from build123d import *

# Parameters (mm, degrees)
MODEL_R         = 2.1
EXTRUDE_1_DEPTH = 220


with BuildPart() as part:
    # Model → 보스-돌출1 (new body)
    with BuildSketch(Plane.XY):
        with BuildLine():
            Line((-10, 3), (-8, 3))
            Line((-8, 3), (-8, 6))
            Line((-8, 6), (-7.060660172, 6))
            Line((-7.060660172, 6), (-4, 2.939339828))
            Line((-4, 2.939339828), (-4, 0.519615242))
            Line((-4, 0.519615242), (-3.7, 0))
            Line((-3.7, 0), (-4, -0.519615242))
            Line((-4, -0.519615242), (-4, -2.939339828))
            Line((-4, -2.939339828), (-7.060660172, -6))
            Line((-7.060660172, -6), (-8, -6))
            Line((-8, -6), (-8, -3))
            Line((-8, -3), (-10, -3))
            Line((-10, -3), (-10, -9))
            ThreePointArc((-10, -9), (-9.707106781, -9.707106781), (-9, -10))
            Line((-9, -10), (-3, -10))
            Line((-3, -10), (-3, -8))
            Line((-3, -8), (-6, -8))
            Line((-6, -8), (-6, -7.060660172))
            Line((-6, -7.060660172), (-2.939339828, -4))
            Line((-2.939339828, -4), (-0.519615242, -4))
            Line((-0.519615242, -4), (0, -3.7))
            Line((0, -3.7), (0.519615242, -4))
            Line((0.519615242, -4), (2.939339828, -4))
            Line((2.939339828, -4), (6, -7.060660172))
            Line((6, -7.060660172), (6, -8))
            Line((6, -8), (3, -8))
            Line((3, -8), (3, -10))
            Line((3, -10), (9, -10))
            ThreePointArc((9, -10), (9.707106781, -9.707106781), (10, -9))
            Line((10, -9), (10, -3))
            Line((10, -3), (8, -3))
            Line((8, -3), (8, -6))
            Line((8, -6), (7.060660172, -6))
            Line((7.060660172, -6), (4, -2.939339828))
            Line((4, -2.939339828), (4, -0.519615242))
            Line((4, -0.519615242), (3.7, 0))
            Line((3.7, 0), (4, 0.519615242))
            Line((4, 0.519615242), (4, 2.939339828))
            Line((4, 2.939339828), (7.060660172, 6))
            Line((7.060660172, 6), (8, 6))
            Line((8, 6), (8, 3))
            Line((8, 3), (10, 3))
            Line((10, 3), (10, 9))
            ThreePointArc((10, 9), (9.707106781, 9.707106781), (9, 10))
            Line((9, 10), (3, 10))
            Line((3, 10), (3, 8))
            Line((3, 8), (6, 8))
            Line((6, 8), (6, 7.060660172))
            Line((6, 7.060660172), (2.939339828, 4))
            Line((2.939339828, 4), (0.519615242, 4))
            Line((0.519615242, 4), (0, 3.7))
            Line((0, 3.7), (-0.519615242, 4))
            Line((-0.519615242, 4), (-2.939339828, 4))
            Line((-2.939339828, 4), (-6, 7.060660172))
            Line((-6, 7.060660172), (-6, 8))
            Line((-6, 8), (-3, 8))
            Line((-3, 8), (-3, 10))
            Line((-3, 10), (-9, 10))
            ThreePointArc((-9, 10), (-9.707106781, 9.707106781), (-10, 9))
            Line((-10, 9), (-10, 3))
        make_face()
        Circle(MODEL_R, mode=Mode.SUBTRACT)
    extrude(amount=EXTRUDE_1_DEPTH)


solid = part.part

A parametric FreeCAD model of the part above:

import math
import FreeCAD as App
import Part
import Sketcher
from FreeCAD import Vector
Q = App.Units.Quantity

doc = App.newDocument("Part")
body = doc.addObject("PartDesign::Body", "Body")

# Sketch on XY plane
sketch1 = body.newObject("Sketcher::SketchObject", "Sketch")
sketch1.AttachmentSupport = (doc.getObject("XY_Plane"), [""])
sketch1.MapMode = "FlatFace"
sketch1.addGeometry([
    Part.LineSegment(Vector(-10, 3, 0), Vector(-8, 3, 0)),  # 0
    Part.LineSegment(Vector(-8, 3, 0), Vector(-8, 6, 0)),  # 1
    Part.LineSegment(Vector(-8, 6, 0), Vector(-7.1, 6, 0)),  # 2
    Part.LineSegment(Vector(-7.1, 6, 0), Vector(-4, 2.9, 0)),  # 3
    Part.LineSegment(Vector(-4, 2.9, 0), Vector(-4, 0.5, 0)),  # 4
    Part.LineSegment(Vector(-4, 0.5, 0), Vector(-3.7, 0, 0)),  # 5
    Part.LineSegment(Vector(-3.7, 0, 0), Vector(-4, -0.5, 0)),  # 6
    Part.LineSegment(Vector(-4, -0.5, 0), Vector(-4, -2.9, 0)),  # 7
    Part.LineSegment(Vector(-4, -2.9, 0), Vector(-7.1, -6, 0)),  # 8
    Part.LineSegment(Vector(-7.1, -6, 0), Vector(-8, -6, 0)),  # 9
    Part.LineSegment(Vector(-8, -6, 0), Vector(-8, -3, 0)),  # 10
    Part.LineSegment(Vector(-8, -3, 0), Vector(-10, -3, 0)),  # 11
    Part.LineSegment(Vector(-10, -3, 0), Vector(-10, -9, 0)),  # 12
    Part.ArcOfCircle(Part.Circle(Vector(-9, -9, 0), Vector(0, 0, 1), 1), math.radians(-180), math.radians(-90)),  # 13
    Part.LineSegment(Vector(-9, -10, 0), Vector(-3, -10, 0)),  # 14
    Part.LineSegment(Vector(-3, -10, 0), Vector(-3, -8, 0)),  # 15
    Part.LineSegment(Vector(-3, -8, 0), Vector(-6, -8, 0)),  # 16
    Part.LineSegment(Vector(-6, -8, 0), Vector(-6, -7.1, 0)),  # 17
    Part.LineSegment(Vector(-6, -7.1, 0), Vector(-2.9, -4, 0)),  # 18
    Part.LineSegment(Vector(-2.9, -4, 0), Vector(-0.5, -4, 0)),  # 19
    Part.LineSegment(Vector(-0.5, -4, 0), Vector(0, -3.7, 0)),  # 20
    Part.LineSegment(Vector(0, -3.7, 0), Vector(0.5, -4, 0)),  # 21
    Part.LineSegment(Vector(0.5, -4, 0), Vector(2.9, -4, 0)),  # 22
    Part.LineSegment(Vector(2.9, -4, 0), Vector(6, -7.1, 0)),  # 23
    Part.LineSegment(Vector(6, -7.1, 0), Vector(6, -8, 0)),  # 24
    Part.LineSegment(Vector(6, -8, 0), Vector(3, -8, 0)),  # 25
    Part.LineSegment(Vector(3, -8, 0), Vector(3, -10, 0)),  # 26
    Part.LineSegment(Vector(3, -10, 0), Vector(9, -10, 0)),  # 27
    Part.ArcOfCircle(Part.Circle(Vector(9, -9, 0), Vector(0, 0, 1), 1), math.radians(-90), math.radians(0)),  # 28
    Part.LineSegment(Vector(10, -9, 0), Vector(10, -3, 0)),  # 29
    Part.LineSegment(Vector(10, -3, 0), Vector(8, -3, 0)),  # 30
    Part.LineSegment(Vector(8, -3, 0), Vector(8, -6, 0)),  # 31
    Part.LineSegment(Vector(8, -6, 0), Vector(7.1, -6, 0)),  # 32
    Part.LineSegment(Vector(7.1, -6, 0), Vector(4, -2.9, 0)),  # 33
    Part.LineSegment(Vector(4, -2.9, 0), Vector(4, -0.5, 0)),  # 34
    Part.LineSegment(Vector(4, -0.5, 0), Vector(3.7, 0, 0)),  # 35
    Part.LineSegment(Vector(3.7, 0, 0), Vector(4, 0.5, 0)),  # 36
    Part.LineSegment(Vector(4, 0.5, 0), Vector(4, 2.9, 0)),  # 37
    Part.LineSegment(Vector(4, 2.9, 0), Vector(7.1, 6, 0)),  # 38
    Part.LineSegment(Vector(7.1, 6, 0), Vector(8, 6, 0)),  # 39
    Part.LineSegment(Vector(8, 6, 0), Vector(8, 3, 0)),  # 40
    Part.LineSegment(Vector(8, 3, 0), Vector(10, 3, 0)),  # 41
    Part.LineSegment(Vector(10, 3, 0), Vector(10, 9, 0)),  # 42
    Part.ArcOfCircle(Part.Circle(Vector(9, 9, 0), Vector(0, 0, 1), 1), math.radians(0), math.radians(90)),  # 43
    Part.LineSegment(Vector(9, 10, 0), Vector(3, 10, 0)),  # 44
    Part.LineSegment(Vector(3, 10, 0), Vector(3, 8, 0)),  # 45
    Part.LineSegment(Vector(3, 8, 0), Vector(6, 8, 0)),  # 46
    Part.LineSegment(Vector(6, 8, 0), Vector(6, 7.1, 0)),  # 47
    Part.LineSegment(Vector(6, 7.1, 0), Vector(2.9, 4, 0)),  # 48
    Part.LineSegment(Vector(2.9, 4, 0), Vector(0.5, 4, 0)),  # 49
    Part.LineSegment(Vector(0.5, 4, 0), Vector(0, 3.7, 0)),  # 50
    Part.LineSegment(Vector(0, 3.7, 0), Vector(-0.5, 4, 0)),  # 51
    Part.LineSegment(Vector(-0.5, 4, 0), Vector(-2.9, 4, 0)),  # 52
    Part.LineSegment(Vector(-2.9, 4, 0), Vector(-6, 7.1, 0)),  # 53
    Part.LineSegment(Vector(-6, 7.1, 0), Vector(-6, 8, 0)),  # 54
    Part.LineSegment(Vector(-6, 8, 0), Vector(-3, 8, 0)),  # 55
    Part.LineSegment(Vector(-3, 8, 0), Vector(-3, 10, 0)),  # 56
    Part.LineSegment(Vector(-3, 10, 0), Vector(-9, 10, 0)),  # 57
    Part.ArcOfCircle(Part.Circle(Vector(-9, 9, 0), Vector(0, 0, 1), 1), math.radians(90), math.radians(180)),  # 58
    Part.LineSegment(Vector(-10, 9, 0), Vector(-10, 3, 0)),  # 59
    Part.Circle(Vector(0, 0, 0), Vector(0, 0, 1), 2.1),  # 60
], False)
sketch1.addConstraint([
    Sketcher.Constraint("Coincident", 0, 2, 1, 1),
    Sketcher.Constraint("Coincident", 1, 2, 2, 1),
    Sketcher.Constraint("Coincident", 2, 2, 3, 1),
    Sketcher.Constraint("Coincident", 3, 2, 4, 1),
    Sketcher.Constraint("Coincident", 4, 2, 5, 1),
    Sketcher.Constraint("Coincident", 5, 2, 6, 1),
    Sketcher.Constraint("Coincident", 6, 2, 7, 1),
    Sketcher.Constraint("Coincident", 7, 2, 8, 1),
    Sketcher.Constraint("Coincident", 8, 2, 9, 1),
    Sketcher.Constraint("Coincident", 9, 2, 10, 1),
    Sketcher.Constraint("Coincident", 10, 2, 11, 1),
    Sketcher.Constraint("Coincident", 11, 2, 12, 1),
    Sketcher.Constraint("Tangent", 12, 2, 13, 1),
    Sketcher.Constraint("Tangent", 13, 2, 14, 1),
    Sketcher.Constraint("Coincident", 14, 2, 15, 1),
    Sketcher.Constraint("Coincident", 15, 2, 16, 1),
    Sketcher.Constraint("Coincident", 16, 2, 17, 1),
    Sketcher.Constraint("Coincident", 17, 2, 18, 1),
    Sketcher.Constraint("Coincident", 18, 2, 19, 1),
    Sketcher.Constraint("Coincident", 19, 2, 20, 1),
    Sketcher.Constraint("Coincident", 20, 2, 21, 1),
    Sketcher.Constraint("Coincident", 21, 2, 22, 1),
    Sketcher.Constraint("Coincident", 22, 2, 23, 1),
    Sketcher.Constraint("Coincident", 23, 2, 24, 1),
    Sketcher.Constraint("Coincident", 24, 2, 25, 1),
    Sketcher.Constraint("Coincident", 25, 2, 26, 1),
    Sketcher.Constraint("Coincident", 26, 2, 27, 1),
    Sketcher.Constraint("Tangent", 27, 2, 28, 1),
    Sketcher.Constraint("Tangent", 28, 2, 29, 1),
    Sketcher.Constraint("Coincident", 29, 2, 30, 1),
    Sketcher.Constraint("Coincident", 30, 2, 31, 1),
    Sketcher.Constraint("Coincident", 31, 2, 32, 1),
    Sketcher.Constraint("Coincident", 32, 2, 33, 1),
    Sketcher.Constraint("Coincident", 33, 2, 34, 1),
    Sketcher.Constraint("Coincident", 34, 2, 35, 1),
    Sketcher.Constraint("Coincident", 35, 2, 36, 1),
    Sketcher.Constraint("Coincident", 36, 2, 37, 1),
    Sketcher.Constraint("Coincident", 37, 2, 38, 1),
    Sketcher.Constraint("Coincident", 38, 2, 39, 1),
    Sketcher.Constraint("Coincident", 39, 2, 40, 1),
    Sketcher.Constraint("Coincident", 40, 2, 41, 1),
    Sketcher.Constraint("Coincident", 41, 2, 42, 1),
    Sketcher.Constraint("Tangent", 42, 2, 43, 1),
    Sketcher.Constraint("Tangent", 43, 2, 44, 1),
    Sketcher.Constraint("Coincident", 44, 2, 45, 1),
    Sketcher.Constraint("Coincident", 45, 2, 46, 1),
    Sketcher.Constraint("Coincident", 46, 2, 47, 1),
    Sketcher.Constraint("Coincident", 47, 2, 48, 1),
    Sketcher.Constraint("Coincident", 48, 2, 49, 1),
    Sketcher.Constraint("Coincident", 49, 2, 50, 1),
    Sketcher.Constraint("Coincident", 50, 2, 51, 1),
    Sketcher.Constraint("Coincident", 51, 2, 52, 1),
    Sketcher.Constraint("Coincident", 52, 2, 53, 1),
    Sketcher.Constraint("Coincident", 53, 2, 54, 1),
    Sketcher.Constraint("Coincident", 54, 2, 55, 1),
    Sketcher.Constraint("Coincident", 55, 2, 56, 1),
    Sketcher.Constraint("Coincident", 56, 2, 57, 1),
    Sketcher.Constraint("Tangent", 57, 2, 58, 1),
    Sketcher.Constraint("Tangent", 58, 2, 59, 1),
    Sketcher.Constraint("Coincident", 59, 2, 0, 1),
    Sketcher.Constraint("Horizontal", 0),
    Sketcher.Constraint("Vertical", 1),
    Sketcher.Constraint("Horizontal", 2),
    Sketcher.Constraint("Vertical", 4),
    Sketcher.Constraint("Vertical", 7),
    Sketcher.Constraint("Horizontal", 9),
    Sketcher.Constraint("Vertical", 10),
    Sketcher.Constraint("Horizontal", 11),
    Sketcher.Constraint("Vertical", 12),
    Sketcher.Constraint("Horizontal", 14),
    Sketcher.Constraint("Vertical", 15),
    Sketcher.Constraint("Horizontal", 16),
    Sketcher.Constraint("Vertical", 17),
    Sketcher.Constraint("Horizontal", 19),
    Sketcher.Constraint("Horizontal", 22),
    Sketcher.Constraint("Vertical", 24),
    Sketcher.Constraint("Horizontal", 25),
    Sketcher.Constraint("Vertical", 26),
    Sketcher.Constraint("Horizontal", 27),
    Sketcher.Constraint("Vertical", 29),
    Sketcher.Constraint("Horizontal", 30),
    Sketcher.Constraint("Vertical", 31),
    Sketcher.Constraint("Horizontal", 32),
    Sketcher.Constraint("Vertical", 34),
    Sketcher.Constraint("Vertical", 37),
    Sketcher.Constraint("Horizontal", 39),
    Sketcher.Constraint("Vertical", 40),
    Sketcher.Constraint("Horizontal", 41),
    Sketcher.Constraint("Vertical", 42),
    Sketcher.Constraint("Horizontal", 44),
    Sketcher.Constraint("Vertical", 45),
    Sketcher.Constraint("Horizontal", 46),
    Sketcher.Constraint("Vertical", 47),
    Sketcher.Constraint("Horizontal", 49),
    Sketcher.Constraint("Horizontal", 52),
    Sketcher.Constraint("Vertical", 54),
    Sketcher.Constraint("Horizontal", 55),
    Sketcher.Constraint("Vertical", 56),
    Sketcher.Constraint("Horizontal", 57),
    Sketcher.Constraint("Vertical", 59),
    Sketcher.Constraint("Coincident", 60, 3, -1, 1),
    Sketcher.Constraint("Equal", 13, 28),
    Sketcher.Constraint("Equal", 28, 43),
    Sketcher.Constraint("Equal", 43, 58),
    Sketcher.Constraint("Symmetric", 13, 3, 43, 3, -1, 1),
    Sketcher.Constraint("Symmetric", 28, 3, 58, 3, -1, 1),
    Sketcher.Constraint("Symmetric", 0, 2, 30, 2, -1, 1),
    Sketcher.Constraint("Symmetric", 2, 2, 32, 2, -1, 1),
    Sketcher.Constraint("Symmetric", 3, 2, 33, 2, -1, 1),
    Sketcher.Constraint("Symmetric", 5, 2, 35, 2, -1, 1),
    Sketcher.Constraint("Symmetric", 6, 2, 36, 2, -1, 1),
    Sketcher.Constraint("Symmetric", 8, 2, 38, 2, -1, 1),
    Sketcher.Constraint("Symmetric", 10, 2, 40, 2, -1, 1),
    Sketcher.Constraint("Symmetric", 15, 2, 45, 2, -1, 1),
    Sketcher.Constraint("Symmetric", 17, 2, 47, 2, -1, 1),
    Sketcher.Constraint("Symmetric", 18, 2, 48, 2, -1, 1),
    Sketcher.Constraint("Symmetric", 20, 2, 50, 2, -1, 1),
    Sketcher.Constraint("Symmetric", 21, 2, 51, 2, -1, 1),
    Sketcher.Constraint("Symmetric", 23, 2, 53, 2, -1, 1),
    Sketcher.Constraint("Symmetric", 25, 2, 55, 2, -1, 1),
    Sketcher.Constraint("Symmetric", 13, 3, 28, 3, -2),
    Sketcher.Constraint("Symmetric", 19, 2, 21, 2, -2),
    Sketcher.Constraint("Symmetric", 17, 2, 23, 2, -2),
    Sketcher.Constraint("Symmetric", 15, 2, 25, 2, -2),
    Sketcher.Constraint("Symmetric", 10, 2, 30, 2, -2),
    Sketcher.Constraint("Symmetric", 8, 2, 32, 2, -2),
    Sketcher.Constraint("Symmetric", 7, 2, 33, 2, -2),
    Sketcher.Constraint("PointOnObject", 5, 2, -1),
    Sketcher.Constraint("PointOnObject", 20, 2, -2),
    Sketcher.Constraint("Perpendicular", 3, 8),
    Sketcher.Constraint("Parallel", 8, 18),
    Sketcher.Constraint("Perpendicular", 5, 20),
    Sketcher.Constraint("Perpendicular", 6, 21),
    Sketcher.Constraint("Perpendicular", 18, 23),
    Sketcher.Constraint("Perpendicular", 20, 35),
    Sketcher.Constraint("Perpendicular", 33, 38),
    Sketcher.Constraint("Perpendicular", 35, 50),
    Sketcher.Constraint("Perpendicular", 48, 53),
    Sketcher.Constraint("Equal", 55, 1),
    Sketcher.Constraint("Equal", 52, 4),
    Sketcher.Constraint("Equal", 57, 12),
    Sketcher.Constraint("Equal", 41, 15),
    Sketcher.Constraint("Equal", 39, 17),
    Sketcher.Constraint("Equal", 8, 18),
    Sketcher.Constraint("Equal", 6, 20),
    Sketcher.Constraint("Radius", 13, 1.0),
    Sketcher.Constraint("Diameter", 60, 4.2),
    Sketcher.Constraint("DistanceX", 0, 1, 0, 2, 2.0),
    Sketcher.Constraint("DistanceX", 14, 1, 14, 2, 6.0),
    Sketcher.Constraint("DistanceX", 16, 2, 16, 1, 3.0),
    Sketcher.Constraint("Angle", 5, Q("-60 deg")),
    Sketcher.Constraint("DistanceX", 13, 3, -1, 1, 9.0),
    Sketcher.Constraint("DistanceX", 3, 2, -1, 1, 4.0),
    Sketcher.Constraint("Distance", 5, 0.6),
    Sketcher.Constraint("DistanceX", 2, 1, 2, 2, 0.93934),
])
pad1 = body.newObject("PartDesign::Pad", "Pad")
pad1.Profile = sketch1
pad1.Length = 220

doc.recompute()
